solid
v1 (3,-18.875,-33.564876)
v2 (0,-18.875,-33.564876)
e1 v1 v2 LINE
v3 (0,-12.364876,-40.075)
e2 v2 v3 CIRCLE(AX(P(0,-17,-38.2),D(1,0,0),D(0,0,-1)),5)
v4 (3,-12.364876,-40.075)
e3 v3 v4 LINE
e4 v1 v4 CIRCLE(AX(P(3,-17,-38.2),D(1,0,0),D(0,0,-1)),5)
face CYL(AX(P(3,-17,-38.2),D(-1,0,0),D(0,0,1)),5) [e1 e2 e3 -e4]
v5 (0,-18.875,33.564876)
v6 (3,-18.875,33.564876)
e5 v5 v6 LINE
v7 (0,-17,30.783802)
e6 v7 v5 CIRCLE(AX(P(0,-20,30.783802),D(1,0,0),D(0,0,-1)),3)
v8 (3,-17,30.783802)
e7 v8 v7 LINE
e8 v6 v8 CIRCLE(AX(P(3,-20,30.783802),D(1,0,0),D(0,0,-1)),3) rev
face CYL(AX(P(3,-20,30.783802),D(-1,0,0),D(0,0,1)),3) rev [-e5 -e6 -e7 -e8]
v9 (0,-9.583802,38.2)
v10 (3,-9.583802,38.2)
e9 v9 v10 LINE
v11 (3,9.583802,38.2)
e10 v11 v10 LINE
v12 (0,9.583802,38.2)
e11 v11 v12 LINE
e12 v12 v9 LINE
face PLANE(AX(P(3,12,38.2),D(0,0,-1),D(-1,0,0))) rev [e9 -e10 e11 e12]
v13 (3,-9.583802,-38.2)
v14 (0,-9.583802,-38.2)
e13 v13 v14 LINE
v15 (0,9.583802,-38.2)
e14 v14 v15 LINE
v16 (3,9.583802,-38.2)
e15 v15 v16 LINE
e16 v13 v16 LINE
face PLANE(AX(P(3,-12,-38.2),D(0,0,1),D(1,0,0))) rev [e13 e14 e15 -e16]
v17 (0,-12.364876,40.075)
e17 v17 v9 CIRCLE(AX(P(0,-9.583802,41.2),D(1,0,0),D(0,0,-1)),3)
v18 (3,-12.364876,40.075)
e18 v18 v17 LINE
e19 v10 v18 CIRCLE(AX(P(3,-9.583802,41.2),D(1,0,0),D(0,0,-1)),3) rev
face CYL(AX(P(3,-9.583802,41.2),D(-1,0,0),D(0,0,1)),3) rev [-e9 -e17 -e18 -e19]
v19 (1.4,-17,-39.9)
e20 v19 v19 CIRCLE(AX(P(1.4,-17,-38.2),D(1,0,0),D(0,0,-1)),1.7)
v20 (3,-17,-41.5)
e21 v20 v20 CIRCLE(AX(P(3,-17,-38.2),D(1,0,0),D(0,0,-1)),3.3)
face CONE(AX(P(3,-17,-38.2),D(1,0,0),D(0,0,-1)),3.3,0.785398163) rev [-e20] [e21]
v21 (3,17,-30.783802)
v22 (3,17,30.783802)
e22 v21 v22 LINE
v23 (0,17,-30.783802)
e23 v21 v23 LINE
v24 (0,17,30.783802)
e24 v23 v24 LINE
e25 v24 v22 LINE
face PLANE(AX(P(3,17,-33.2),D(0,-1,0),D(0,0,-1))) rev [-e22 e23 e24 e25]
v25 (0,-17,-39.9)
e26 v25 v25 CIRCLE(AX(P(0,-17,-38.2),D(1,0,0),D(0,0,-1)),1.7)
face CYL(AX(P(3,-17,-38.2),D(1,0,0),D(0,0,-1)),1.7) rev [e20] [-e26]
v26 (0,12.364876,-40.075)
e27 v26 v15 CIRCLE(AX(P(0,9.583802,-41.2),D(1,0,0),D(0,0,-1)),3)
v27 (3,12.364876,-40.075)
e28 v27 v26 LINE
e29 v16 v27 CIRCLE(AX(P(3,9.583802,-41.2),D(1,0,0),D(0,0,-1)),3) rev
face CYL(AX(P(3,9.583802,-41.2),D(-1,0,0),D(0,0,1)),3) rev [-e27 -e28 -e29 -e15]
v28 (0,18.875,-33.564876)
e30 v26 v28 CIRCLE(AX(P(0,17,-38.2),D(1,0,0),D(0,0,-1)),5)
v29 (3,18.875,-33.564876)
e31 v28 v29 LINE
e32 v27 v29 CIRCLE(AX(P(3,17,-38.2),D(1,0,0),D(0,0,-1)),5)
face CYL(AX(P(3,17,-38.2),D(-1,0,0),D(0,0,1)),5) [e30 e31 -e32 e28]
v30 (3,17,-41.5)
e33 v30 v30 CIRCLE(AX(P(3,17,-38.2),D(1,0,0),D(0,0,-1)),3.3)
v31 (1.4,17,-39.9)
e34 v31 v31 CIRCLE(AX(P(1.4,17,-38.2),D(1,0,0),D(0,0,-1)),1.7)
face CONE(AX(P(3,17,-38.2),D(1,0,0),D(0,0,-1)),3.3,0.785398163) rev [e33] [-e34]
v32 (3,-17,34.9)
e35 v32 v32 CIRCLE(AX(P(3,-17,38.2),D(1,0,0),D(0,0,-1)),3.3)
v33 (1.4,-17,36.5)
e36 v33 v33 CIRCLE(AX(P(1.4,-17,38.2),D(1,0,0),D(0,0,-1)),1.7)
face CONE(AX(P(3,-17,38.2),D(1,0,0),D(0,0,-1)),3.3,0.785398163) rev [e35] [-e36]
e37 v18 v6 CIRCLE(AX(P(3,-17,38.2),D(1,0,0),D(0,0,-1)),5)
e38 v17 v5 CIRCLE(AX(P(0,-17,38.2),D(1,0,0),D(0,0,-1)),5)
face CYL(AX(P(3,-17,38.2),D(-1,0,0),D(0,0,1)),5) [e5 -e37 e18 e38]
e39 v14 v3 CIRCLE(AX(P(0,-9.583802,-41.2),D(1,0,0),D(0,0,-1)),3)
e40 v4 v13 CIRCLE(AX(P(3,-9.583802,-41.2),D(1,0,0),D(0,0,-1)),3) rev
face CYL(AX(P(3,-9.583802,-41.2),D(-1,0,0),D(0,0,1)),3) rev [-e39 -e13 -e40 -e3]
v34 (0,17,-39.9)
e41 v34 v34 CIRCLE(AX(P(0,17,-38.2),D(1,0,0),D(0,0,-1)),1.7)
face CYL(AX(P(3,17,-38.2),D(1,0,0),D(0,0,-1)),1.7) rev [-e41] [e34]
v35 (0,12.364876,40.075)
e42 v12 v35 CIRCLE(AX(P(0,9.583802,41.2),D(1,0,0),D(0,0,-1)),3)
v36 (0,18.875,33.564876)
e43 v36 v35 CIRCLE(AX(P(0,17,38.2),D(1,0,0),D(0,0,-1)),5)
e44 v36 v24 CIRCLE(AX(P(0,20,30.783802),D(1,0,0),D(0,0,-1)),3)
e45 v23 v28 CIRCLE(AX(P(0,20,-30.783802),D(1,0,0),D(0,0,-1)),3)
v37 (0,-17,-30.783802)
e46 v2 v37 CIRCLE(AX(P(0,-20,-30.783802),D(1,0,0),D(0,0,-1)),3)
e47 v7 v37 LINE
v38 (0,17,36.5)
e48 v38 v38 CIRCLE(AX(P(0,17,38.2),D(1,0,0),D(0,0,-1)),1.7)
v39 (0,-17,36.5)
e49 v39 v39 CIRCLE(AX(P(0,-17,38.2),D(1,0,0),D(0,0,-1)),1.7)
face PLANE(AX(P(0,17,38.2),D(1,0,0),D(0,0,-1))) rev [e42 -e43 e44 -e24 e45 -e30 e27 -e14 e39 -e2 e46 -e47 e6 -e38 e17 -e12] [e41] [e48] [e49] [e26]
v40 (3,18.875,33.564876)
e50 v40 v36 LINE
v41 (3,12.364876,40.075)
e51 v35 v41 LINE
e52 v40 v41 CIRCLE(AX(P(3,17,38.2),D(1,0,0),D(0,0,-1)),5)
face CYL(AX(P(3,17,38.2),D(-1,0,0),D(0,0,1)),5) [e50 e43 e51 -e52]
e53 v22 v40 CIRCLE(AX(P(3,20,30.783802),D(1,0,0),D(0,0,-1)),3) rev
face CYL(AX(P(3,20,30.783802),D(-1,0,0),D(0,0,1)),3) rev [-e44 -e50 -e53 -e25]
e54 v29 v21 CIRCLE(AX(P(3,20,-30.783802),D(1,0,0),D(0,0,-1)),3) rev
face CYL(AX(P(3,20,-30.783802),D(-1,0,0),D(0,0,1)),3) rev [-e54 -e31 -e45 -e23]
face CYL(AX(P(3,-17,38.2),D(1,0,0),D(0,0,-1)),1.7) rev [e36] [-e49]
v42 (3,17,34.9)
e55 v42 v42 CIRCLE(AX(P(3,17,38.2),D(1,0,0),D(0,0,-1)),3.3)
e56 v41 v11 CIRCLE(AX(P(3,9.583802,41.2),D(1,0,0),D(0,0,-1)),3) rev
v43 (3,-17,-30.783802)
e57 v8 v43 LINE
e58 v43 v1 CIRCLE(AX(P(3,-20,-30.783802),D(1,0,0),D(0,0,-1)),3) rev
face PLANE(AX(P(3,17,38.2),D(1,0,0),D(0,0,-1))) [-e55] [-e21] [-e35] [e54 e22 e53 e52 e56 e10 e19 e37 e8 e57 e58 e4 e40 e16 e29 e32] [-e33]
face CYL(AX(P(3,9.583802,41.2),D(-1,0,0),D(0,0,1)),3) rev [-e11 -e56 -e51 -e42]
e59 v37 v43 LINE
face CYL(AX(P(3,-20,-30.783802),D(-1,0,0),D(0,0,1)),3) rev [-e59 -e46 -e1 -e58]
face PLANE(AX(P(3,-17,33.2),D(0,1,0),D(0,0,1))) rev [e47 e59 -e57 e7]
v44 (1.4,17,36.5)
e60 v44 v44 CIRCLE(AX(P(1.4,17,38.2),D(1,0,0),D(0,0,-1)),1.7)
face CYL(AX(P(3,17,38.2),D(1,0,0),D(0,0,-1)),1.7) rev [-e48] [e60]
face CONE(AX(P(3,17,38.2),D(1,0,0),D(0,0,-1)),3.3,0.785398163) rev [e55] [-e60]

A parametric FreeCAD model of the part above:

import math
import FreeCAD as App
import Part
import Sketcher
from FreeCAD import Vector
Q = App.Units.Quantity


def edges_at(feature, points):
    """Names of the edges that pass closest to the given points."""
    edges = feature.Shape.Edges
    near = lambda p: min(range(len(edges)), key=lambda i: edges[i].distToShape(Part.Vertex(*p))[0])
    return sorted({f"Edge{near(p) + 1}" for p in points})

doc = App.newDocument("Part")
params = doc.addObject("Spreadsheet::Sheet", "Params")
for row, (alias, value) in enumerate([
    ("sketch1_radius", "5 mm"),
    ("sketch1_width", "24 mm"),
    ("sketch1_height", "66.4 mm"),
    ("pad1_length", "3 mm"),
    ("fillet_radius", "3 mm"),
    ("sketch2_width", "3 mm"),
    ("sketch2_width2", "1.4 mm"),
    ("sketch2_height", "3.3 mm"),
    ("groove_angle", "360 deg"),
    ("linearpattern_pitch", "34 mm"),
    ("linearpattern2_pitch", "83.62392 mm"),
    ("linearpattern3_pitch", "76.4 mm"),
], start=1):
    params.set(f"A{row}", alias)
    params.set(f"B{row}", "=" + value)
    params.setAlias(f"B{row}", alias)

body = doc.addObject("PartDesign::Body", "Body")

sketch1 = body.newObject("Sketcher::SketchObject", "Sketch")
sketch1.AttachmentSupport = (doc.getObject("YZ_Plane"), [""])
sketch1.MapMode = "FlatFace"
sketch1.addGeometry([
    Part.LineSegment(Vector(12, 38, 0), Vector(-12, 38, 0)),
    Part.ArcOfCircle(Part.Circle(Vector(-17, 38, 0), Vector(0, 0, 1), 5), math.radians(0), math.radians(270)),
    Part.LineSegment(Vector(-17, 33, 0), Vector(-17, -33, 0)),
    Part.ArcOfCircle(Part.Circle(Vector(-17, -38, 0), Vector(0, 0, 1), 5), math.radians(90), math.radians(360)),
    Part.LineSegment(Vector(-12, -38, 0), Vector(12, -38, 0)),
    Part.ArcOfCircle(Part.Circle(Vector(17, -38, 0), Vector(0, 0, 1), 5), math.radians(180), math.radians(450)),
    Part.LineSegment(Vector(17, -33, 0), Vector(17, 33, 0)),
    Part.ArcOfCircle(Part.Circle(Vector(17, 38, 0), Vector(0, 0, 1), 5), math.radians(-90), math.radians(180)),
], False)
sketch1.addConstraint([
    Sketcher.Constraint("Coincident", 0, 2, 1, 1),
    Sketcher.Constraint("Coincident", 1, 2, 2, 1),
    Sketcher.Constraint("Coincident", 2, 2, 3, 1),
    Sketcher.Constraint("Coincident", 3, 2, 4, 1),
    Sketcher.Constraint("Coincident", 4, 2, 5, 1),
    Sketcher.Constraint("Coincident", 5, 2, 6, 1),
    Sketcher.Constraint("Coincident", 6, 2, 7, 1),
    Sketcher.Constraint("Coincident", 7, 2, 0, 1),
    Sketcher.Constraint("Horizontal", 0),
    Sketcher.Constraint("Vertical", 2),
    Sketcher.Constraint("Horizontal", 4),
    Sketcher.Constraint("Vertical", 6),
    Sketcher.Constraint("Equal", 1, 3),
    Sketcher.Constraint("Equal", 3, 5),
    Sketcher.Constraint("Equal", 5, 7),
    Sketcher.Constraint("Symmetric", 1, 3, 5, 3, -1, 1),
    Sketcher.Constraint("Symmetric", 3, 3, 7, 3, -1, 1),
    Sketcher.Constraint("Symmetric", 3, 3, 5, 3, -2),
    Sketcher.Constraint("Horizontal", 7, 3, 0, 2),
    Sketcher.Constraint("Horizontal", 5, 3, 3, 2),
    Sketcher.Constraint("Vertical", 3, 3, 1, 2),
    Sketcher.Constraint("Vertical", 7, 3, 5, 2),
    Sketcher.Constraint("Radius", 1, 5.0),
    Sketcher.Constraint("DistanceX", 0, 2, 0, 1, 24.0),
    Sketcher.Constraint("DistanceY", 2, 2, 2, 1, 66.4),
])
sketch1.setExpression("Constraints[22]", "Params.sketch1_radius")
sketch1.setExpression("Constraints[23]", "Params.sketch1_width")
sketch1.setExpression("Constraints[24]", "Params.sketch1_height")
pad1 = body.newObject("PartDesign::Pad", "Pad")
pad1.Profile = sketch1
pad1.setExpression("Length", "Params.pad1_length")
doc.recompute()

fillet = body.newObject("PartDesign::Fillet", "Fillet")
fillet.Base = (pad1, edges_at(pad1, [
    (1.5, 17, 33.2),
    (1.5, 17, -33.2),
    (1.5, 12, -38.2),
    (1.5, -12, -38.2),
    (1.5, -17, -33.2),
    (1.5, -17, 33.2),
    (1.5, -12, 38.2),
    (1.5, 12, 38.2),
]))
fillet.setExpression("Radius", "Params.fillet_radius")

sketch2 = body.newObject("Sketcher::SketchObject", "Sketch001")
sketch2.AttachmentSupport = (doc.getObject("XZ_Plane"), [""])
sketch2.MapMode = "FlatFace"
sketch2.AttachmentOffset = App.Placement(Vector(0, 0, -17), App.Rotation())
sketch2.addGeometry([
    Part.LineSegment(Vector(0, 38.2, 0), Vector(3, 38.2, 0)),
    Part.LineSegment(Vector(3, 38.2, 0), Vector(3, 34.9, 0)),
    Part.LineSegment(Vector(3, 34.9, 0), Vector(1.4, 36.5, 0)),
    Part.LineSegment(Vector(1.4, 36.5, 0), Vector(0, 36.5, 0)),
    Part.LineSegment(Vector(0, 36.5, 0), Vector(0, 38.2, 0)),
], False)
sketch2.addGeometry(Part.LineSegment(Vector(3, 38.2, 0), Vector(0, 38.2, 0)), True)
sketch2.addConstraint([
    Sketcher.Constraint("Coincident", 0, 2, 1, 1),
    Sketcher.Constraint("Coincident", 1, 2, 2, 1),
    Sketcher.Constraint("Coincident", 2, 2, 3, 1),
    Sketcher.Constraint("Coincident", 3, 2, 4, 1),
    Sketcher.Constraint("Coincident", 4, 2, 0, 1),
    Sketcher.Constraint("Horizontal", 0),
    Sketcher.Constraint("Vertical", 1),
    Sketcher.Constraint("Horizontal", 3),
    Sketcher.Constraint("Vertical", 4),
    Sketcher.Constraint("Horizontal", 5),
    Sketcher.Constraint("Coincident", 5, 1, 0, 2),
    Sketcher.Constraint("PointOnObject", 3, 2, -2),
    Sketcher.Constraint("PointOnObject", 5, 2, -2),
    Sketcher.Constraint("DistanceX", 0, 1, 0, 2, 3.0),
    Sketcher.Constraint("Angle", 2, Q("135 deg")),
    Sketcher.Constraint("DistanceX", 3, 2, 3, 1, 1.4),
    Sketcher.Constraint("DistanceY", 1, 2, 1, 1, 3.3),
    Sketcher.Constraint("DistanceY", -1, 1, 0, 2, 38.2),
])
sketch2.setExpression("Constraints[13]", "Params.sketch2_width")
sketch2.setExpression("Constraints[15]", "Params.sketch2_width2")
sketch2.setExpression("Constraints[16]", "Params.sketch2_height")
groove = body.newObject("PartDesign::Groove", "Groove")
groove.Profile = sketch2
groove.ReferenceAxis = (sketch2, ["Axis0"])
groove.setExpression("Angle", "Params.groove_angle")
doc.recompute()

linearpattern = body.newObject("PartDesign::LinearPattern", "LinearPattern")
linearpattern.Originals = [groove]
linearpattern.Direction = (doc.getObject("Y_Axis"), [""])
linearpattern.Mode = "offset"
linearpattern.setExpression("Offset", "Params.linearpattern_pitch")
linearpattern.Occurrences = 2
linearpattern.Reversed = True
body.Tip = linearpattern
doc.recompute()

datumline = body.newObject("PartDesign::Line", "DatumLine")
datumline.Placement = App.Placement(Vector(0, 0, 0), App.Rotation(Vector(0, 0, 1), Vector(0, -0.406582231, -0.913614191)))
linearpattern2 = body.newObject("PartDesign::LinearPattern", "LinearPattern001")
linearpattern2.Originals = [groove]
linearpattern2.Direction = (datumline, [""])
linearpattern2.Mode = "offset"
linearpattern2.setExpression("Offset", "Params.linearpattern2_pitch")
linearpattern2.Occurrences = 2
body.Tip = linearpattern2
doc.recompute()

linearpattern3 = body.newObject("PartDesign::LinearPattern", "LinearPattern002")
linearpattern3.Originals = [groove]
linearpattern3.Direction = (doc.getObject("Z_Axis"), [""])
linearpattern3.Mode = "offset"
linearpattern3.setExpression("Offset", "Params.linearpattern3_pitch")
linearpattern3.Occurrences = 2
linearpattern3.Reversed = True
body.Tip = linearpattern3

doc.recompute()
